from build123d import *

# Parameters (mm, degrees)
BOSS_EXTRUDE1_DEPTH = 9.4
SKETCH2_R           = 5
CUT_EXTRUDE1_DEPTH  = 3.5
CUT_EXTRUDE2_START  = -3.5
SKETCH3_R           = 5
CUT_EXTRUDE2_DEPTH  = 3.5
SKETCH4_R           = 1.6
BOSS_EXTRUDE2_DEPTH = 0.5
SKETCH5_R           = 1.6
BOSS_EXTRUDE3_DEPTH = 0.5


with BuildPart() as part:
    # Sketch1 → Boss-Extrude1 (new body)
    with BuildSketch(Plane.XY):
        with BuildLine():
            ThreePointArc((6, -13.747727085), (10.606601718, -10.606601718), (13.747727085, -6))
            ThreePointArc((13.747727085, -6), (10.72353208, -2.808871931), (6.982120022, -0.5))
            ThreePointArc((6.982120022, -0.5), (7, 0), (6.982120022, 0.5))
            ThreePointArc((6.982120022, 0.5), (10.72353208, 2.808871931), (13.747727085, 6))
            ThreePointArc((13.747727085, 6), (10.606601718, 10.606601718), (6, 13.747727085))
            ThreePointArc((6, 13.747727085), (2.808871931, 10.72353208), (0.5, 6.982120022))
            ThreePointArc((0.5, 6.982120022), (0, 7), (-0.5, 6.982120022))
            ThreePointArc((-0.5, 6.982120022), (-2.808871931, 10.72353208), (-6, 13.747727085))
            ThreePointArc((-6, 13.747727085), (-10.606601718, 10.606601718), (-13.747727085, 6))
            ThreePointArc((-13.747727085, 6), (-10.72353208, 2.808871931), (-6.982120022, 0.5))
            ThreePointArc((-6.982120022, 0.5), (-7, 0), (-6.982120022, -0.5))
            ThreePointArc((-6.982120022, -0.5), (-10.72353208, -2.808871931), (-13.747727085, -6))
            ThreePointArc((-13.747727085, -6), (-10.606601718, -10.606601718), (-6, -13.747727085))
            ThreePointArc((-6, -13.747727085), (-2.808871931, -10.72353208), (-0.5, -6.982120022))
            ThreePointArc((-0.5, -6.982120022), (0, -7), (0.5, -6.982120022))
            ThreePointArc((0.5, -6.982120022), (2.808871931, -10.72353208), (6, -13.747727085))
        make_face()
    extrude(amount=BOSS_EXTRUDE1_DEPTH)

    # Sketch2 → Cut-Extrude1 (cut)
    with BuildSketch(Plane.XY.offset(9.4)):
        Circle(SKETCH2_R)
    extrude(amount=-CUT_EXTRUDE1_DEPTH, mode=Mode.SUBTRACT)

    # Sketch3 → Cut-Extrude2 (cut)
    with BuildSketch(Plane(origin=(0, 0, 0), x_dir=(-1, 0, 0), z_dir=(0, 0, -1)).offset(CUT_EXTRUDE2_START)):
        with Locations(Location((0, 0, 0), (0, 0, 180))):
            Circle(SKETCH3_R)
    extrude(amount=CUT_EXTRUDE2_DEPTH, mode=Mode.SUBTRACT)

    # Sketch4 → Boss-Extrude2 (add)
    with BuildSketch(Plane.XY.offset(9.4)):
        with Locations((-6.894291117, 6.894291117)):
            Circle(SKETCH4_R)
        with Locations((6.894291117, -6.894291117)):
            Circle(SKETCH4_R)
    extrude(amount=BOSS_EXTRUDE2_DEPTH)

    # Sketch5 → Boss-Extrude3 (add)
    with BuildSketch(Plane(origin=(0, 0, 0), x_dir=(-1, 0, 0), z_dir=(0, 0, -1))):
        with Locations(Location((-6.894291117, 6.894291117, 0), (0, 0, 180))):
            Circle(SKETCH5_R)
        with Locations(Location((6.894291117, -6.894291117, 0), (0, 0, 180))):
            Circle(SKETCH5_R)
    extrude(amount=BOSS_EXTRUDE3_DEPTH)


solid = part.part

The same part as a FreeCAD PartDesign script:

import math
import FreeCAD as App
import Part
import Sketcher

doc = App.newDocument("Part")
body = doc.addObject("PartDesign::Body", "Body")

sketch1 = body.newObject("Sketcher::SketchObject", "Sketch")
sketch1.AttachmentSupport = (doc.getObject("XY_Plane"), [""])
sketch1.MapMode = "FlatFace"
sketch1.addGeometry([
    Part.ArcOfCircle(Part.Circle(App.Vector(0, 0, 0), App.Vector(0, 0, 1), 15), math.radians(-66.421822), math.radians(-23.578178)),
    Part.ArcOfCircle(Part.Circle(App.Vector(0, -16, 0), App.Vector(0, 0, 1), 17), math.radians(36.031879), math.radians(65.750371)),
    Part.ArcOfCircle(Part.Circle(App.Vector(0, 0, 0), App.Vector(0, 0, 1), 7), math.radians(-4.096044), math.radians(4.096044)),
    Part.ArcOfCircle(Part.Circle(App.Vector(0, 16, 0), App.Vector(0, 0, 1), 17), math.radians(-65.750371), math.radians(-36.031879)),
    Part.ArcOfCircle(Part.Circle(App.Vector(0, 0, 0), App.Vector(0, 0, 1), 15), math.radians(23.578178), math.radians(66.421822)),
    Part.ArcOfCircle(Part.Circle(App.Vector(16, 0, 0), App.Vector(0, 0, 1), 17), math.radians(126.031879), math.radians(155.750371)),
    Part.ArcOfCircle(Part.Circle(App.Vector(0, 0, 0), App.Vector(0, 0, 1), 7), math.radians(85.903956), math.radians(94.096044)),
    Part.ArcOfCircle(Part.Circle(App.Vector(-16, 0, 0), App.Vector(0, 0, 1), 17), math.radians(24.249629), math.radians(53.968121)),
    Part.ArcOfCircle(Part.Circle(App.Vector(0, 0, 0), App.Vector(0, 0, 1), 15), math.radians(113.578178), math.radians(156.421822)),
    Part.ArcOfCircle(Part.Circle(App.Vector(0, 16, 0), App.Vector(0, 0, 1), 17), math.radians(-143.968121), math.radians(-114.249629)),
    Part.ArcOfCircle(Part.Circle(App.Vector(0, 0, 0), App.Vector(0, 0, 1), 7), math.radians(175.903956), math.radians(184.096044)),
    Part.ArcOfCircle(Part.Circle(App.Vector(0, -16, 0), App.Vector(0, 0, 1), 17), math.radians(114.249629), math.radians(143.968121)),
    Part.ArcOfCircle(Part.Circle(App.Vector(0, 0, 0), App.Vector(0, 0, 1), 15), math.radians(-156.421822), math.radians(-113.578178)),
    Part.ArcOfCircle(Part.Circle(App.Vector(-16, 0, 0), App.Vector(0, 0, 1), 17), math.radians(-53.968121), math.radians(-24.249629)),
    Part.ArcOfCircle(Part.Circle(App.Vector(0, 0, 0), App.Vector(0, 0, 1), 7), math.radians(-94.096044), math.radians(-85.903956)),
    Part.ArcOfCircle(Part.Circle(App.Vector(16, 0, 0), App.Vector(0, 0, 1), 17), math.radians(-155.750371), math.radians(-126.031879)),
], False)
sketch1.addConstraint([
    Sketcher.Constraint("Coincident", 0, 2, 1, 1),
    Sketcher.Constraint("Coincident", 1, 2, 2, 1),
    Sketcher.Constraint("Coincident", 2, 2, 3, 1),
    Sketcher.Constraint("Coincident", 3, 2, 4, 1),
    Sketcher.Constraint("Coincident", 4, 2, 5, 1),
    Sketcher.Constraint("Coincident", 5, 2, 6, 1),
    Sketcher.Constraint("Coincident", 6, 2, 7, 1),
    Sketcher.Constraint("Coincident", 7, 2, 8, 1),
    Sketcher.Constraint("Coincident", 8, 2, 9, 1),
    Sketcher.Constraint("Coincident", 9, 2, 10, 1),
    Sketcher.Constraint("Coincident", 10, 2, 11, 1),
    Sketcher.Constraint("Coincident", 11, 2, 12, 1),
    Sketcher.Constraint("Coincident", 12, 2, 13, 1),
    Sketcher.Constraint("Coincident", 13, 2, 14, 1),
    Sketcher.Constraint("Coincident", 14, 2, 15, 1),
    Sketcher.Constraint("Coincident", 15, 2, 0, 1),
    Sketcher.Constraint("Coincident", 0, 3, -1, 1),
    Sketcher.Constraint("Coincident", 2, 3, -1, 1),
    Sketcher.Constraint("Coincident", 4, 3, -1, 1),
    Sketcher.Constraint("Coincident", 6, 3, -1, 1),
    Sketcher.Constraint("Coincident", 8, 3, -1, 1),
    Sketcher.Constraint("Coincident", 10, 3, -1, 1),
    Sketcher.Constraint("Coincident", 12, 3, -1, 1),
    Sketcher.Constraint("Coincident", 14, 3, -1, 1),
    Sketcher.Constraint("Coincident", 9, 3, 3, 3),
    Sketcher.Constraint("Coincident", 11, 3, 1, 3),
    Sketcher.Constraint("Coincident", 13, 3, 7, 3),
    Sketcher.Constraint("Coincident", 15, 3, 5, 3),
    Sketcher.Constraint("Equal", 1, 3),
    Sketcher.Constraint("Equal", 0, 4),
    Sketcher.Constraint("Equal", 3, 5),
    Sketcher.Constraint("Equal", 2, 6),
    Sketcher.Constraint("Equal", 5, 7),
    Sketcher.Constraint("Equal", 4, 8),
    Sketcher.Constraint("Equal", 7, 9),
    Sketcher.Constraint("Equal", 6, 10),
    Sketcher.Constraint("Equal", 9, 11),
    Sketcher.Constraint("Equal", 8, 12),
    Sketcher.Constraint("Equal", 11, 13),
    Sketcher.Constraint("Equal", 10, 14),
    Sketcher.Constraint("Equal", 13, 15),
    Sketcher.Constraint("Symmetric", 1, 3, 3, 3, -1, 1),
    Sketcher.Constraint("Symmetric", 5, 3, 7, 3, -1, 1),
    Sketcher.Constraint("PointOnObject", 1, 3, -2),
    Sketcher.Constraint("PointOnObject", 5, 3, -1),
    Sketcher.Constraint("Radius", 0, 15.0),
    Sketcher.Constraint("Radius", 1, 17.0),
    Sketcher.Constraint("Radius", 2, 7.0),
    Sketcher.Constraint("DistanceY", 1, 3, -1, 1, 16.0),
    Sketcher.Constraint("DistanceX", -1, 1, 5, 3, 16.0),
])
pad1 = body.newObject("PartDesign::Pad", "Pad")
pad1.Profile = sketch1
pad1.Length = 9.4

sketch2 = body.newObject("Sketcher::SketchObject", "Sketch001")
sketch2.AttachmentSupport = (doc.getObject("XY_Plane"), [""])
sketch2.MapMode = "FlatFace"
sketch2.AttachmentOffset = App.Placement(App.Vector(0, 0, 9.4), App.Rotation())
sketch2.addGeometry(Part.Circle(App.Vector(0, 0, 0), App.Vector(0, 0, 1), 5), False)
sketch2.addConstraint([
    Sketcher.Constraint("Coincident", 0, 3, -1, 1),
    Sketcher.Constraint("Diameter", 0, 10.0),
])
pocket1 = body.newObject("PartDesign::Pocket", "Pocket")
pocket1.Profile = sketch2
pocket1.Length = 3.5

sketch3 = body.newObject("Sketcher::SketchObject", "Sketch002")
sketch3.AttachmentSupport = (doc.getObject("XY_Plane"), [""])
sketch3.MapMode = "FlatFace"
sketch3.AttachmentOffset = App.Placement(App.Vector(0, 0, 3.5), App.Rotation())
sketch3.addGeometry(Part.Circle(App.Vector(0, 0, 0), App.Vector(0, 0, 1), 5), False)
sketch3.addConstraint([
    Sketcher.Constraint("Coincident", 0, 3, -1, 1),
    Sketcher.Constraint("Diameter", 0, 10.0),
])
pocket2 = body.newObject("PartDesign::Pocket", "Pocket001")
pocket2.Profile = sketch3
pocket2.Length = 3.5

sketch4 = body.newObject("Sketcher::SketchObject", "Sketch003")
sketch4.AttachmentSupport = (doc.getObject("XY_Plane"), [""])
sketch4.MapMode = "FlatFace"
sketch4.AttachmentOffset = App.Placement(App.Vector(0, 0, 9.4), App.Rotation())
sketch4.addGeometry([
    Part.Circle(App.Vector(-6.894291, 6.894291, 0), App.Vector(0, 0, 1), 1.6),
    Part.Circle(App.Vector(6.894291, -6.894291, 0), App.Vector(0, 0, 1), 1.6),
], False)
sketch4.addConstraint([
    Sketcher.Constraint("Equal", 0, 1),
    Sketcher.Constraint("Symmetric", 0, 3, 1, 3, -1, 1),
    Sketcher.Constraint("Diameter", 0, 3.2),
    Sketcher.Constraint("DistanceX", 0, 3, -1, 1, 6.894291),
    Sketcher.Constraint("DistanceY", -1, 1, 0, 3, 6.894291),
])
pad2 = body.newObject("PartDesign::Pad", "Pad001")
pad2.Profile = sketch4
pad2.Length = 0.5

sketch5 = body.newObject("Sketcher::SketchObject", "Sketch004")
sketch5.AttachmentSupport = (doc.getObject("XY_Plane"), [""])
sketch5.MapMode = "FlatFace"
sketch5.addGeometry([
    Part.Circle(App.Vector(6.894291, 6.894291, 0), App.Vector(0, 0, 1), 1.6),
    Part.Circle(App.Vector(-6.894291, -6.894291, 0), App.Vector(0, 0, 1), 1.6),
], False)
sketch5.addConstraint([
    Sketcher.Constraint("Equal", 0, 1),
    Sketcher.Constraint("Symmetric", 0, 3, 1, 3, -1, 1),
    Sketcher.Constraint("Diameter", 0, 3.2),
    Sketcher.Constraint("DistanceX", -1, 1, 0, 3, 6.894291),
    Sketcher.Constraint("DistanceY", -1, 1, 0, 3, 6.894291),
])
pad3 = body.newObject("PartDesign::Pad", "Pad002")
pad3.Profile = sketch5
pad3.Length = 0.5
pad3.Reversed = True

doc.recompute()
